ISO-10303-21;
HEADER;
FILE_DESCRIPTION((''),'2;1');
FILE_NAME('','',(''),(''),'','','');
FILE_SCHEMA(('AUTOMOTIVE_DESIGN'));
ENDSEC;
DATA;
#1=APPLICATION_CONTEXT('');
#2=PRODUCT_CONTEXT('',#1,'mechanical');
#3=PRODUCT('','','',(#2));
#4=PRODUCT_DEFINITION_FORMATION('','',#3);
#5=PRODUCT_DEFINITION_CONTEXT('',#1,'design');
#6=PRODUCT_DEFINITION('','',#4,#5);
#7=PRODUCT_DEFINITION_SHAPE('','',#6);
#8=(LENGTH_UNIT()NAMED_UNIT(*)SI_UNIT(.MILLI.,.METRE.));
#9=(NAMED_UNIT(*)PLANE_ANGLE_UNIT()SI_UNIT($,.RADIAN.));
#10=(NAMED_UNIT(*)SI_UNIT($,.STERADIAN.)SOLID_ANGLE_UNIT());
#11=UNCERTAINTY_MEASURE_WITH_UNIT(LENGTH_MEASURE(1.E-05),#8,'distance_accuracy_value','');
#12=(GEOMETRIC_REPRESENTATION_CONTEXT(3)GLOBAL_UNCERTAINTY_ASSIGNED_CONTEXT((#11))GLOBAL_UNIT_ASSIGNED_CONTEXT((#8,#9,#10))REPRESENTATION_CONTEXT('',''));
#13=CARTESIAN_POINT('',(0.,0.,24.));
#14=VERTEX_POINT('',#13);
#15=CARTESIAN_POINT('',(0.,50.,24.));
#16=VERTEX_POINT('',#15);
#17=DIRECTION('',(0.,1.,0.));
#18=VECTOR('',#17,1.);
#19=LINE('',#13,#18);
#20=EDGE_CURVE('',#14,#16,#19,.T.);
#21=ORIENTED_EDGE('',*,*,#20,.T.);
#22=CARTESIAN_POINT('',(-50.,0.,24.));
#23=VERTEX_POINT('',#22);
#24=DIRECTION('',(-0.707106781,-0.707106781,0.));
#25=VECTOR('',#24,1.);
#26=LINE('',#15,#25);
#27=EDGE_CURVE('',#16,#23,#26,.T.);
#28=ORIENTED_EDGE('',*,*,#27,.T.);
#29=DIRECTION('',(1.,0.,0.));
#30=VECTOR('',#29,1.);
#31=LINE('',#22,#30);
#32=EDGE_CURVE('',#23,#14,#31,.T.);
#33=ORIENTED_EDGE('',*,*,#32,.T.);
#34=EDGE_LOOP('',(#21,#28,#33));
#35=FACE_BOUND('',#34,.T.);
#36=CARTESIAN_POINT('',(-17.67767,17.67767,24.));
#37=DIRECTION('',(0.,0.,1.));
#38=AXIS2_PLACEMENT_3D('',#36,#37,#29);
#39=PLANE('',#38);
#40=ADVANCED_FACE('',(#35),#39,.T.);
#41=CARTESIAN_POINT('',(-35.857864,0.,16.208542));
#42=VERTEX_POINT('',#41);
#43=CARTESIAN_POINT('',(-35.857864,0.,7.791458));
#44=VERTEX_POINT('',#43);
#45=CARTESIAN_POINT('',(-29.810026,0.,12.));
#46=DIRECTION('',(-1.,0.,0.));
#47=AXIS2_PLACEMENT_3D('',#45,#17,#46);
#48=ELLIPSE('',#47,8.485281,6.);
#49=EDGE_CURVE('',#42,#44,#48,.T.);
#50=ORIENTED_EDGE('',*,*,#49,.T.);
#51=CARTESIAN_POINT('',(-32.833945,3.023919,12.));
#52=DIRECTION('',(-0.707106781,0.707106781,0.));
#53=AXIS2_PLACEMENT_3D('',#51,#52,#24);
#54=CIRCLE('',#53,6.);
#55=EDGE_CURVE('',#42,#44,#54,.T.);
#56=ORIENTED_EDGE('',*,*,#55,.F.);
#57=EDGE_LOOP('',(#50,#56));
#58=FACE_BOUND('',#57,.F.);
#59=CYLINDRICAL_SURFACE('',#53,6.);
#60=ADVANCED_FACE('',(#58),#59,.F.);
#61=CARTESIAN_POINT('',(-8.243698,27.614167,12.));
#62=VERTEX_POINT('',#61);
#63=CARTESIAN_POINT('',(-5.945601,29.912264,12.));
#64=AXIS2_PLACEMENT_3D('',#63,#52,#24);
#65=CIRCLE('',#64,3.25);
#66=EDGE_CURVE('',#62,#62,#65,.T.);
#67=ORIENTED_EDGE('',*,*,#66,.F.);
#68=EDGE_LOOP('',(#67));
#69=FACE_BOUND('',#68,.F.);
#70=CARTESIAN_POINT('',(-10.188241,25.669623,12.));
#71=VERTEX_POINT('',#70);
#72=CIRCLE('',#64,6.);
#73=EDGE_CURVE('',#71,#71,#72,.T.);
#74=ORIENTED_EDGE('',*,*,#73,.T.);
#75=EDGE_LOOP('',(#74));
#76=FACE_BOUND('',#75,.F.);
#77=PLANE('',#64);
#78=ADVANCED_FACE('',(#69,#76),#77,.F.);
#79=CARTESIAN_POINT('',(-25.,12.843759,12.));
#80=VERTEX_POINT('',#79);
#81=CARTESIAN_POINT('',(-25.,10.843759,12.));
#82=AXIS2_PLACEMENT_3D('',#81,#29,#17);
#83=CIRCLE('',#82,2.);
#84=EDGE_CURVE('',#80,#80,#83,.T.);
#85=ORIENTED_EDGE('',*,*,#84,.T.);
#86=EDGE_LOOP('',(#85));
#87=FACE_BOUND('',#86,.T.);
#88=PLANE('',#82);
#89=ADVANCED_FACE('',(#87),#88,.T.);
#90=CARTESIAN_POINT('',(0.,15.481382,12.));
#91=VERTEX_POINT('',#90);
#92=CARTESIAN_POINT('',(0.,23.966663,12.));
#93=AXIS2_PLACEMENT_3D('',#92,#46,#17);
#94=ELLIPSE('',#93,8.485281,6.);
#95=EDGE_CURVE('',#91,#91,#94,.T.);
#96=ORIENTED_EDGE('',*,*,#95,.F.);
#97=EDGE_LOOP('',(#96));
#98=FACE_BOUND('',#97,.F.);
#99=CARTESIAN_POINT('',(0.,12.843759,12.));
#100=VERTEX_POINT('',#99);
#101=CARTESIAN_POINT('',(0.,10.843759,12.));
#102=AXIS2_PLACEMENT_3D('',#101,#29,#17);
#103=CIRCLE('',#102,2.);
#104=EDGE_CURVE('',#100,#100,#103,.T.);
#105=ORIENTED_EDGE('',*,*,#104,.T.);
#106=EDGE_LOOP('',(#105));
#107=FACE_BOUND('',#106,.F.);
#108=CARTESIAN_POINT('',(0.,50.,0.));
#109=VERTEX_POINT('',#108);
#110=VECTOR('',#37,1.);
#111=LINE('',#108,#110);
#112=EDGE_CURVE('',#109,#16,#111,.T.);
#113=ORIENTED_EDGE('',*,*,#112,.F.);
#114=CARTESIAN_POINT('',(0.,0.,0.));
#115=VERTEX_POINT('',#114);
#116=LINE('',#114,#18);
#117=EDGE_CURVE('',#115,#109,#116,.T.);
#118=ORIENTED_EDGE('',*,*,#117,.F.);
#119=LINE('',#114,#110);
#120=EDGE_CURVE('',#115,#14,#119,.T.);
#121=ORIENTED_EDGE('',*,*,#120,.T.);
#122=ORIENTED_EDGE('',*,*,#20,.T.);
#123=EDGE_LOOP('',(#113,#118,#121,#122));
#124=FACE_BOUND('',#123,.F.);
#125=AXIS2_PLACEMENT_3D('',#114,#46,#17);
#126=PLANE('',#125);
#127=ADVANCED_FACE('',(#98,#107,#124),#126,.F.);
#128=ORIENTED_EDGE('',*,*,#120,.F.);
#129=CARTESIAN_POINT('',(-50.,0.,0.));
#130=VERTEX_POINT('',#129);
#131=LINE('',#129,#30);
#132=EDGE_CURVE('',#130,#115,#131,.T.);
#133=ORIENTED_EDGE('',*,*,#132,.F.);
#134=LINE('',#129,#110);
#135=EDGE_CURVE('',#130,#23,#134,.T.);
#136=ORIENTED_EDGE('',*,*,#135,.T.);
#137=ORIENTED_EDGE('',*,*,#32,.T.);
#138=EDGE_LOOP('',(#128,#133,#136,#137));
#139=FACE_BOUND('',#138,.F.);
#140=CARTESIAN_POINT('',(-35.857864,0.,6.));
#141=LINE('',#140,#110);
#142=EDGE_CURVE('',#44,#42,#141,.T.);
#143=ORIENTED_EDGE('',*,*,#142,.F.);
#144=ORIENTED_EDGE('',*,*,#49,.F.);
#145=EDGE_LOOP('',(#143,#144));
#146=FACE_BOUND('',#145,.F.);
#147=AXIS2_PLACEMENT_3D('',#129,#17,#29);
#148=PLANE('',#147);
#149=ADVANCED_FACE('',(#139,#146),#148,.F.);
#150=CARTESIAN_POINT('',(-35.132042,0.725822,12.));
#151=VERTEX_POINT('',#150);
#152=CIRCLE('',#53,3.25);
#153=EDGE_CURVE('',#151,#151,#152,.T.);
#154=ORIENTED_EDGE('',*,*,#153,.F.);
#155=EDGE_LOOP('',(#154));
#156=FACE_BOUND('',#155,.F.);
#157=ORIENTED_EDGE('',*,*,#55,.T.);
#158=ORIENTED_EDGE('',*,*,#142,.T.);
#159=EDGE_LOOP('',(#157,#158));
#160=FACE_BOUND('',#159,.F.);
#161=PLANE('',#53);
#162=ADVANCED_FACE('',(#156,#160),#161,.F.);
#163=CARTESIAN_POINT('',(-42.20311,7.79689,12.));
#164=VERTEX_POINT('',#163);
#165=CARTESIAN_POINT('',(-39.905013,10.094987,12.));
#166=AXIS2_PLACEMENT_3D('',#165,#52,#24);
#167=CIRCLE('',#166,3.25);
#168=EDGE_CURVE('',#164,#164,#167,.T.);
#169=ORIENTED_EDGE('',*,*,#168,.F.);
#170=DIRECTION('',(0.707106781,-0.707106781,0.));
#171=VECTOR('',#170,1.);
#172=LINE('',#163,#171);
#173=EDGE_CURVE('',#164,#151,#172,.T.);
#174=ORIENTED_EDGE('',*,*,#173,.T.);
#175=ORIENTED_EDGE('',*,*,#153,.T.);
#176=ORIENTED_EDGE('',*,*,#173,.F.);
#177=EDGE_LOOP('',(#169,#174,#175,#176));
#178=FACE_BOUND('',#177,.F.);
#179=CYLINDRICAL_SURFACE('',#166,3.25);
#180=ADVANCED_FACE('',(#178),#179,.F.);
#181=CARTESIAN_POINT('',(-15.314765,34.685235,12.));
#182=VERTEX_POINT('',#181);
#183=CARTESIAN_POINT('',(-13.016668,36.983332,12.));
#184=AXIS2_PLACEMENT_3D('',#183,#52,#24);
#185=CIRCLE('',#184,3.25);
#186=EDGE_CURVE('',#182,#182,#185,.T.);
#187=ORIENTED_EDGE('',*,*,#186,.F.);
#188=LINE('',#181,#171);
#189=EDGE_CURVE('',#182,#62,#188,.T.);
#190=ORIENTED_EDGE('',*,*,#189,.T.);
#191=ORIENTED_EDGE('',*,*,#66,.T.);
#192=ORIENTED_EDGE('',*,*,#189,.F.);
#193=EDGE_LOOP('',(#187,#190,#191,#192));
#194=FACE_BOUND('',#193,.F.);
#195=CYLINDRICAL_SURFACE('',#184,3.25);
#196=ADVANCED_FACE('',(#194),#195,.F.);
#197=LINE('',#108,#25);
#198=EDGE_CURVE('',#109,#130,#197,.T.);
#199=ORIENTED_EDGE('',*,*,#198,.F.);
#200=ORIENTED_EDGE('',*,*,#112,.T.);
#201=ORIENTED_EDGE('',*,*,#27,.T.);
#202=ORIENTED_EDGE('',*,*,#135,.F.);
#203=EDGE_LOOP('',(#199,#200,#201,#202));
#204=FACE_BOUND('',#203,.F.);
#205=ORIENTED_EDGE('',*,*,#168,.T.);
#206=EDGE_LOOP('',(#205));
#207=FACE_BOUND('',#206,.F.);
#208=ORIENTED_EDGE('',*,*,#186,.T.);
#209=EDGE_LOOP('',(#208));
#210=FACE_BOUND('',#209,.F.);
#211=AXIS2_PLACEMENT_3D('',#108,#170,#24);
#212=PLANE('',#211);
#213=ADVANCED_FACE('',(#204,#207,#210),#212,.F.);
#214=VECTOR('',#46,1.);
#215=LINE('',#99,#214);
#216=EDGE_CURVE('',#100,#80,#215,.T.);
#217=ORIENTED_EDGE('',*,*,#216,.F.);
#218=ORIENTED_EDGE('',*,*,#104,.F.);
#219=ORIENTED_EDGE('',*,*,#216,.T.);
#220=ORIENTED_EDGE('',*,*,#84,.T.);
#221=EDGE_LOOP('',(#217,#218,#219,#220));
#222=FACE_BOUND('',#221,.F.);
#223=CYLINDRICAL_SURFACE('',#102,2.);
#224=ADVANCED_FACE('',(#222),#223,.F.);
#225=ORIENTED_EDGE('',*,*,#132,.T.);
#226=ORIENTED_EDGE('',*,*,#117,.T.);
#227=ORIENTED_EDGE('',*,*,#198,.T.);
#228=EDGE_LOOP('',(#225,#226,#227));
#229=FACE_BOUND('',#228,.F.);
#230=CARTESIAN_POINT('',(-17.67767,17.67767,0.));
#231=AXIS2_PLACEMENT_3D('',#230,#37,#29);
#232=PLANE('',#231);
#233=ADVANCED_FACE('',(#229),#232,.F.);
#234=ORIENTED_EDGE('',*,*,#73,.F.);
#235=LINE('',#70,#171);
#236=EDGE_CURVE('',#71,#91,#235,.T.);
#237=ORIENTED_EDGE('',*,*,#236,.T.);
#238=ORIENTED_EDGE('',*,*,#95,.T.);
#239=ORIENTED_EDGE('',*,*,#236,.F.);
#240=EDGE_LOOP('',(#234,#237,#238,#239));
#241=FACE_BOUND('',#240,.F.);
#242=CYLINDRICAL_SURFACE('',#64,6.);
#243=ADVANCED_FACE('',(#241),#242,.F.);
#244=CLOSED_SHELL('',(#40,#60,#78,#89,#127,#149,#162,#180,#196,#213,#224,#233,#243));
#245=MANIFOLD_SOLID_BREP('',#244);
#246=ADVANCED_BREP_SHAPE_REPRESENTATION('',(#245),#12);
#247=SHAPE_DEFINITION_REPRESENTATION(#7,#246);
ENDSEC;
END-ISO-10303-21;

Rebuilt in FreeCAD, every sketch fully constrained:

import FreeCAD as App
import Part
import Sketcher
from FreeCAD import Vector

doc = App.newDocument("Part")
body = doc.addObject("PartDesign::Body", "Body")

sketch1 = body.newObject("Sketcher::SketchObject", "Sketch")
sketch1.AttachmentSupport = (doc.getObject("XY_Plane"), [""])
sketch1.MapMode = "FlatFace"
sketch1.addGeometry([
    Part.LineSegment(Vector(-50, 0, 0), Vector(0, 0, 0)),
    Part.LineSegment(Vector(0, 0, 0), Vector(0, 50, 0)),
    Part.LineSegment(Vector(0, 50, 0), Vector(-50, 0, 0)),
], False)
sketch1.addConstraint([
    Sketcher.Constraint("Coincident", 0, 2, 1, 1),
    Sketcher.Constraint("Coincident", 1, 2, 2, 1),
    Sketcher.Constraint("Coincident", 2, 2, 0, 1),
    Sketcher.Constraint("Horizontal", 0),
    Sketcher.Constraint("Vertical", 1),
    Sketcher.Constraint("Coincident", 0, 2, -1, 1),
    Sketcher.Constraint("Equal", 0, 1),
    Sketcher.Constraint("DistanceX", 0, 1, 0, 2, 50.0),
])
pad1 = body.newObject("PartDesign::Pad", "Pad")
pad1.Profile = sketch1
pad1.Length = 24

sketch2 = body.newObject("Sketcher::SketchObject", "Sketch001")
sketch2.Placement = App.Placement(Vector(-25, 25, 0), App.Rotation(Vector(-0.707106781, -0.707106781, 0), Vector(0, 0, 0.999999999), Vector(-0.707106781, 0.707106781, 0), "ZXY"))
sketch2.addGeometry([
    Part.Circle(Vector(-16.9, 12, 0), Vector(0, 0, 1), 3.2),
    Part.Circle(Vector(21.1, 12, 0), Vector(0, 0, 1), 3.2),
], False)
sketch2.addConstraint([
    Sketcher.Constraint("Equal", 0, 1),
    Sketcher.Constraint("Horizontal", 0, 3, 1, 3),
    Sketcher.Constraint("Diameter", 0, 6.5),
    Sketcher.Constraint("DistanceY", -1, 1, 0, 3, 12.0),
    Sketcher.Constraint("DistanceX", 0, 3, -1, 1, 16.94699),
    Sketcher.Constraint("DistanceX", -1, 1, 1, 3, 21.078872),
])
pocket1 = body.newObject("PartDesign::Pocket", "Pocket")
pocket1.Profile = sketch2
pocket1.Length = 25

sketch3 = body.newObject("Sketcher::SketchObject", "Sketch002")
sketch3.Placement = App.Placement(Vector(-17.928932, 17.928932, 0), App.Rotation(Vector(-0.707106781, -0.707106781, 0), Vector(0, 0, 0.999999999), Vector(-0.707106781, 0.707106781, 0), "ZXY"))
sketch3.addGeometry([
    Part.Circle(Vector(21.1, 12, 0), Vector(0, 0, 1), 6),
    Part.Circle(Vector(21.1, 12, 0), Vector(0, 0, 1), 3.2),
    Part.Circle(Vector(-16.9, 12, 0), Vector(0, 0, 1), 6),
    Part.Circle(Vector(-16.9, 12, 0), Vector(0, 0, 1), 3.2),
], False)
sketch3.addConstraint([
    Sketcher.Constraint("Coincident", 1, 3, 0, 3),
    Sketcher.Constraint("Coincident", 3, 3, 2, 3),
    Sketcher.Constraint("Equal", 0, 2),
    Sketcher.Constraint("Equal", 1, 3),
    Sketcher.Constraint("Horizontal", 1, 3, 2, 3),
    Sketcher.Constraint("Diameter", 0, 12.0),
    Sketcher.Constraint("Diameter", 1, 6.5),
    Sketcher.Constraint("DistanceY", -1, 1, 0, 3, 12.0),
    Sketcher.Constraint("DistanceX", -1, 1, 0, 3, 21.078872),
    Sketcher.Constraint("DistanceX", 2, 3, -1, 1, 16.94699),
])
pocket2 = body.newObject("PartDesign::Pocket", "Pocket001")
pocket2.Profile = sketch3
pocket2.Length = 15

sketch4 = body.newObject("Sketcher::SketchObject", "Sketch003")
sketch4.AttachmentSupport = (doc.getObject("YZ_Plane"), [""])
sketch4.MapMode = "FlatFace"
sketch4.addGeometry(Part.Circle(Vector(10.8, 12, 0), Vector(0, 0, 1), 2), False)
sketch4.addConstraint([
    Sketcher.Constraint("Diameter", 0, 4.0),
    Sketcher.Constraint("DistanceY", -1, 1, 0, 3, 12.0),
    Sketcher.Constraint("DistanceX", -1, 1, 0, 3, 10.843759),
])
pocket3 = body.newObject("PartDesign::Pocket", "Pocket002")
pocket3.Profile = sketch4
pocket3.Length = 25

doc.recompute()
